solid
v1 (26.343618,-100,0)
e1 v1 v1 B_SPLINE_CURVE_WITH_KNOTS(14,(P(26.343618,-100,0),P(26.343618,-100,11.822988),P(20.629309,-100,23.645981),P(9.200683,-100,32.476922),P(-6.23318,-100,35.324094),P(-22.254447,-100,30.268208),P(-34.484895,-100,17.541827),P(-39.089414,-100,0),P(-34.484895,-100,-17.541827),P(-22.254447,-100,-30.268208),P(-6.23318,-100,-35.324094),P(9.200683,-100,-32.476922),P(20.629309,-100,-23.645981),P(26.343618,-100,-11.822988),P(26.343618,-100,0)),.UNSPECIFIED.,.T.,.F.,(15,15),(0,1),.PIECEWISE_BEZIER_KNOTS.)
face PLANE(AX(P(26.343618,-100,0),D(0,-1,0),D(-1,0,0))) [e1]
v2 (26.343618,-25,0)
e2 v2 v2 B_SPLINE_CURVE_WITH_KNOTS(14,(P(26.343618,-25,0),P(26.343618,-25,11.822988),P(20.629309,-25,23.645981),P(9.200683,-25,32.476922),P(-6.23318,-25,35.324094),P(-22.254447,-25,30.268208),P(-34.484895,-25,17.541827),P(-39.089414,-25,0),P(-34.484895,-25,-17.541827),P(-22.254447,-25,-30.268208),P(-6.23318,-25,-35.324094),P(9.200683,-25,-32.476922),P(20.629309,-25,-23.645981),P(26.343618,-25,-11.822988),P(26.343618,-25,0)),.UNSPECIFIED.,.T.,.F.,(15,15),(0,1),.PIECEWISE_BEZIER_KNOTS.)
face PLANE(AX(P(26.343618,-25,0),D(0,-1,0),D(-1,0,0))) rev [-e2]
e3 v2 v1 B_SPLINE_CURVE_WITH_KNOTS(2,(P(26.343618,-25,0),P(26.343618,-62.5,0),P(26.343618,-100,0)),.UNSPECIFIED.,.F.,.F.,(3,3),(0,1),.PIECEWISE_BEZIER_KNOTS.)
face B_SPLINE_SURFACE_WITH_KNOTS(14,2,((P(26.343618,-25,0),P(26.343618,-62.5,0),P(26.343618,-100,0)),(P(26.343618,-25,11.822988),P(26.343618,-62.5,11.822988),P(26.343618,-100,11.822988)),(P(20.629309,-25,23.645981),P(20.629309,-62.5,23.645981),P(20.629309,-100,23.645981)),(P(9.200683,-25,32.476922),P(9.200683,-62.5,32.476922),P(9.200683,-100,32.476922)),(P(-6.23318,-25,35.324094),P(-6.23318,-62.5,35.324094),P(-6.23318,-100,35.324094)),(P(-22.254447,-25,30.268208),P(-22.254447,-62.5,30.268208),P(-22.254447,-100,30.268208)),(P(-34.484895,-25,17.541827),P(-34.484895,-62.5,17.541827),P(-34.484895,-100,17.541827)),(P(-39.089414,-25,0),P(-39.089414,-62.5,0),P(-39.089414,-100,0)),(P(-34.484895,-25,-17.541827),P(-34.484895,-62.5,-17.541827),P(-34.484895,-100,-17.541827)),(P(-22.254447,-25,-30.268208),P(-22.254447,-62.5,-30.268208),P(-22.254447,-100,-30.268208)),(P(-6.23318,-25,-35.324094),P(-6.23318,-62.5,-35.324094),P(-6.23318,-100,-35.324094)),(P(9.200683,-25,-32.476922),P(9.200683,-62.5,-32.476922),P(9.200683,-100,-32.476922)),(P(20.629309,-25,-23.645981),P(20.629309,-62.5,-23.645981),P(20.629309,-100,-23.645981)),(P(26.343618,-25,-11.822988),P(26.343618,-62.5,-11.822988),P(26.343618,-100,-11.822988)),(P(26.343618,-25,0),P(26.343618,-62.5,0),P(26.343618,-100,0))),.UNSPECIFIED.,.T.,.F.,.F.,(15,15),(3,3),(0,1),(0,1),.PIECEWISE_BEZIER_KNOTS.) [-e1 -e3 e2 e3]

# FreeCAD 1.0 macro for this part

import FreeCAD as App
import Part
import Sketcher
from FreeCAD import Vector
Q = App.Units.Quantity

doc = App.newDocument("Part")
body = doc.addObject("PartDesign::Body", "Body")

# Sketch on XZ plane
sketch1 = body.newObject("Sketcher::SketchObject", "Sketch")
sketch1.AttachmentSupport = (doc.getObject("XZ_Plane"), [""])
sketch1.MapMode = "FlatFace"
sketch1.AttachmentOffset = App.Placement(Vector(0, 0, 25), App.Rotation())
sketch1.addGeometry(Part.Circle(Vector(0, 0, 0), Vector(0, 0, 1), 26.343618), False)
sketch1.addConstraint([
    Sketcher.Constraint("Coincident", 0, 3, -1, 1),
    Sketcher.Constraint("Diameter", 0, Q("52.687236 mm")),
])

# Sketch on XZ plane
sketch2 = body.newObject("Sketcher::SketchObject", "Sketch001")
sketch2.AttachmentSupport = (doc.getObject("XZ_Plane"), [""])
sketch2.MapMode = "FlatFace"
sketch2.AttachmentOffset = App.Placement(Vector(0, 0, 50), App.Rotation())
sketch2.addGeometry(Part.Circle(Vector(0, 0, 0), Vector(0, 0, 1), 26.343618), False)
sketch2.addConstraint([
    Sketcher.Constraint("Coincident", 0, 3, -1, 1),
    Sketcher.Constraint("Diameter", 0, Q("52.687236 mm")),
])

# Sketch on XZ plane
sketch3 = body.newObject("Sketcher::SketchObject", "Sketch002")
sketch3.AttachmentSupport = (doc.getObject("XZ_Plane"), [""])
sketch3.MapMode = "FlatFace"
sketch3.AttachmentOffset = App.Placement(Vector(0, 0, 75), App.Rotation())
sketch3.addGeometry(Part.Circle(Vector(0, 0, 0), Vector(0, 0, 1), 26.343618), False)
sketch3.addConstraint([
    Sketcher.Constraint("Coincident", 0, 3, -1, 1),
    Sketcher.Constraint("Diameter", 0, Q("52.687236 mm")),
])

# Sketch on XZ plane
sketch4 = body.newObject("Sketcher::SketchObject", "Sketch003")
sketch4.AttachmentSupport = (doc.getObject("XZ_Plane"), [""])
sketch4.MapMode = "FlatFace"
sketch4.AttachmentOffset = App.Placement(Vector(0, 0, 100), App.Rotation())
sketch4.addGeometry(Part.Circle(Vector(0, 0, 0), Vector(0, 0, 1), 26.343618), False)
sketch4.addConstraint([
    Sketcher.Constraint("Coincident", 0, 3, -1, 1),
    Sketcher.Constraint("Diameter", 0, Q("52.687236 mm")),
])

additiveloft = body.newObject("PartDesign::AdditiveLoft", "AdditiveLoft")
additiveloft.Profile = sketch1
additiveloft.Sections = [sketch2, sketch3, sketch4]

doc.recompute()
